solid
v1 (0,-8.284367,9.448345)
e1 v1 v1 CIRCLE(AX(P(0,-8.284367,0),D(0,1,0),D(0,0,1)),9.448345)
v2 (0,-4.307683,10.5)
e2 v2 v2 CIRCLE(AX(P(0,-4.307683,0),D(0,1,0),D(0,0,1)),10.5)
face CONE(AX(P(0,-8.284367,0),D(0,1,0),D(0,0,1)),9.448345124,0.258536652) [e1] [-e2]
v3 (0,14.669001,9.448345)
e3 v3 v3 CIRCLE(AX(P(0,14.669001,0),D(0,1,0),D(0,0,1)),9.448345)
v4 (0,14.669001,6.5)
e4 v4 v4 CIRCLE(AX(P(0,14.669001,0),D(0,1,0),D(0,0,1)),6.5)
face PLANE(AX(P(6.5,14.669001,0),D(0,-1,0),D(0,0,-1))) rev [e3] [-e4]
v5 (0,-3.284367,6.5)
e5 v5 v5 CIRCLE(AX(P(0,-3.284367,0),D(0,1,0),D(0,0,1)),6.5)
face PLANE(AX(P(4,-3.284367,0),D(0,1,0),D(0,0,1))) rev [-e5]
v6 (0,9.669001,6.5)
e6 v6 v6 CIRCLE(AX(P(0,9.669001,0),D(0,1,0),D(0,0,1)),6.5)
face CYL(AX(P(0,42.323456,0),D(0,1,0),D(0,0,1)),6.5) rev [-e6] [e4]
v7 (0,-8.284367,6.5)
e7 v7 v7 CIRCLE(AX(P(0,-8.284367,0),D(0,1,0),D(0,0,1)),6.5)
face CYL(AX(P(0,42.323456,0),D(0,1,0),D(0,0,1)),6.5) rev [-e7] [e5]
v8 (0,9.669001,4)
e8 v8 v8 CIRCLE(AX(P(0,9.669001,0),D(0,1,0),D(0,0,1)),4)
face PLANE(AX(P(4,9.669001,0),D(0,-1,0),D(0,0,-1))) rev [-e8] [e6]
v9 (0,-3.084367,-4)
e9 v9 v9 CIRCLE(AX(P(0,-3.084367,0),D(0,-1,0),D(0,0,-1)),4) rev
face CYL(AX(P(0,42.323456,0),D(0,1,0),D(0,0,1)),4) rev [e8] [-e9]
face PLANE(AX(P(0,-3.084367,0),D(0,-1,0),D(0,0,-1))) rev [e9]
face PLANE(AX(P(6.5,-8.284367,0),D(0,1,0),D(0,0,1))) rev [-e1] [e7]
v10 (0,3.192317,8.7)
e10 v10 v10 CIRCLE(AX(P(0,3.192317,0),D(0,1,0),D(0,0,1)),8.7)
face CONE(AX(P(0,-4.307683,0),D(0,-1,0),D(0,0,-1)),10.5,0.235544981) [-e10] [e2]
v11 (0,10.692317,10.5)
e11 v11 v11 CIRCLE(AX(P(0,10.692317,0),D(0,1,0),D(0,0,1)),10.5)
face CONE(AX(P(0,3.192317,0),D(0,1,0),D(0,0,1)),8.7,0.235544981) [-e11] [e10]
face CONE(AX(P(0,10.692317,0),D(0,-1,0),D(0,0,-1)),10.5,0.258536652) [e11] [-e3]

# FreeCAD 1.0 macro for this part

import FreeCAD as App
import Part
import Sketcher
from FreeCAD import Vector


def add_polygon(sketch, points):
    """Adds a closed chain of lines whose ends are joined by coincident constraints."""
    first, n = sketch.GeometryCount, len(points)
    for a, b in zip(points, points[1:] + points[:1]):
        sketch.addGeometry(Part.LineSegment(App.Vector(*a, 0), App.Vector(*b, 0)), False)
    for i in range(n):
        sketch.addConstraint(Sketcher.Constraint("Coincident", first + i, 2, first + (i + 1) % n, 1))

doc = App.newDocument("Part")
body = doc.addObject("PartDesign::Body", "Body")

sketch1 = body.newObject("Sketcher::SketchObject", "Sketch")
sketch1.AttachmentSupport = (doc.getObject("XY_Plane"), [""])
sketch1.MapMode = "FlatFace"
add_polygon(sketch1, [(4, 9.669001), (4, -3.284367), (6.5, -3.284367), (6.5, -8.284367), (9.448345, -8.284367), (10.5, -4.307683), (8.7, 3.192317), (10.5, 10.692317), (9.448345, 14.669001), (6.5, 14.669001), (6.5, 9.669001)])
sketch1.addConstraint(Sketcher.Constraint("Vertical", 0))
sketch1.addConstraint(Sketcher.Constraint("Horizontal", 1))
sketch1.addConstraint(Sketcher.Constraint("Vertical", 2))
sketch1.addConstraint(Sketcher.Constraint("Horizontal", 3))
sketch1.addConstraint(Sketcher.Constraint("Horizontal", 8))
sketch1.addConstraint(Sketcher.Constraint("Vertical", 9))
sketch1.addConstraint(Sketcher.Constraint("Horizontal", 10))
sketch1.addConstraint(Sketcher.Constraint("Vertical", 4, 2, 6, 2))
sketch1.addConstraint(Sketcher.Constraint("Vertical", 3, 2, 7, 2))
sketch1.addConstraint(Sketcher.Constraint("Vertical", 2, 2, 8, 2))
sketch1.addConstraint(Sketcher.Constraint("Equal", 2, 9))
sketch1.addConstraint(Sketcher.Constraint("Equal", 5, 6))
sketch1.addConstraint(Sketcher.Constraint("Equal", 4, 7))
sketch1.addConstraint(Sketcher.Constraint("DistanceY", 2, 2, 2, 1, 5.0))
sketch1.addConstraint(Sketcher.Constraint("DistanceX", 1, 1, 1, 2, 2.5))
sketch1.addConstraint(Sketcher.Constraint("DistanceX", -1, 1, 0, 2, 4.0))
sketch1.addConstraint(Sketcher.Constraint("DistanceX", 1, 2, 4, 2, 4.0))
sketch1.addConstraint(Sketcher.Constraint("DistanceY", 4, 2, 6, 2, 15.0))
sketch1.addConstraint(Sketcher.Constraint("DistanceX", -1, 1, 5, 2, 8.7))
sketch1.addConstraint(Sketcher.Constraint("DistanceY", -1, 1, 7, 2, 14.669001))
sketch1.addConstraint(Sketcher.Constraint("Distance", 4, 4.113392))
sketch1.addConstraint(Sketcher.Constraint("DistanceX", 3, 1, 3, 2, 2.948345))
revolution = body.newObject("PartDesign::Revolution", "Revolution")
revolution.Profile = sketch1
revolution.ReferenceAxis = (sketch1, ["V_Axis"])
revolution.Angle = 360

sketch2 = body.newObject("Sketcher::SketchObject", "Sketch001")
sketch2.AttachmentSupport = (doc.getObject("XZ_Plane"), [""])
sketch2.MapMode = "FlatFace"
sketch2.AttachmentOffset = App.Placement(Vector(0, 0, 3.284367), App.Rotation())
sketch2.addGeometry(Part.Circle(Vector(0, 0, 0), Vector(0, 0, 1), 4), False)
sketch2.addConstraint(Sketcher.Constraint("Coincident", 0, 3, -1, 1))
sketch2.addConstraint(Sketcher.Constraint("Diameter", 0, 8.0))
pad1 = body.newObject("PartDesign::Pad", "Pad")
pad1.Profile = sketch2
pad1.Length = 0.2
pad1.Reversed = True

doc.recompute()
